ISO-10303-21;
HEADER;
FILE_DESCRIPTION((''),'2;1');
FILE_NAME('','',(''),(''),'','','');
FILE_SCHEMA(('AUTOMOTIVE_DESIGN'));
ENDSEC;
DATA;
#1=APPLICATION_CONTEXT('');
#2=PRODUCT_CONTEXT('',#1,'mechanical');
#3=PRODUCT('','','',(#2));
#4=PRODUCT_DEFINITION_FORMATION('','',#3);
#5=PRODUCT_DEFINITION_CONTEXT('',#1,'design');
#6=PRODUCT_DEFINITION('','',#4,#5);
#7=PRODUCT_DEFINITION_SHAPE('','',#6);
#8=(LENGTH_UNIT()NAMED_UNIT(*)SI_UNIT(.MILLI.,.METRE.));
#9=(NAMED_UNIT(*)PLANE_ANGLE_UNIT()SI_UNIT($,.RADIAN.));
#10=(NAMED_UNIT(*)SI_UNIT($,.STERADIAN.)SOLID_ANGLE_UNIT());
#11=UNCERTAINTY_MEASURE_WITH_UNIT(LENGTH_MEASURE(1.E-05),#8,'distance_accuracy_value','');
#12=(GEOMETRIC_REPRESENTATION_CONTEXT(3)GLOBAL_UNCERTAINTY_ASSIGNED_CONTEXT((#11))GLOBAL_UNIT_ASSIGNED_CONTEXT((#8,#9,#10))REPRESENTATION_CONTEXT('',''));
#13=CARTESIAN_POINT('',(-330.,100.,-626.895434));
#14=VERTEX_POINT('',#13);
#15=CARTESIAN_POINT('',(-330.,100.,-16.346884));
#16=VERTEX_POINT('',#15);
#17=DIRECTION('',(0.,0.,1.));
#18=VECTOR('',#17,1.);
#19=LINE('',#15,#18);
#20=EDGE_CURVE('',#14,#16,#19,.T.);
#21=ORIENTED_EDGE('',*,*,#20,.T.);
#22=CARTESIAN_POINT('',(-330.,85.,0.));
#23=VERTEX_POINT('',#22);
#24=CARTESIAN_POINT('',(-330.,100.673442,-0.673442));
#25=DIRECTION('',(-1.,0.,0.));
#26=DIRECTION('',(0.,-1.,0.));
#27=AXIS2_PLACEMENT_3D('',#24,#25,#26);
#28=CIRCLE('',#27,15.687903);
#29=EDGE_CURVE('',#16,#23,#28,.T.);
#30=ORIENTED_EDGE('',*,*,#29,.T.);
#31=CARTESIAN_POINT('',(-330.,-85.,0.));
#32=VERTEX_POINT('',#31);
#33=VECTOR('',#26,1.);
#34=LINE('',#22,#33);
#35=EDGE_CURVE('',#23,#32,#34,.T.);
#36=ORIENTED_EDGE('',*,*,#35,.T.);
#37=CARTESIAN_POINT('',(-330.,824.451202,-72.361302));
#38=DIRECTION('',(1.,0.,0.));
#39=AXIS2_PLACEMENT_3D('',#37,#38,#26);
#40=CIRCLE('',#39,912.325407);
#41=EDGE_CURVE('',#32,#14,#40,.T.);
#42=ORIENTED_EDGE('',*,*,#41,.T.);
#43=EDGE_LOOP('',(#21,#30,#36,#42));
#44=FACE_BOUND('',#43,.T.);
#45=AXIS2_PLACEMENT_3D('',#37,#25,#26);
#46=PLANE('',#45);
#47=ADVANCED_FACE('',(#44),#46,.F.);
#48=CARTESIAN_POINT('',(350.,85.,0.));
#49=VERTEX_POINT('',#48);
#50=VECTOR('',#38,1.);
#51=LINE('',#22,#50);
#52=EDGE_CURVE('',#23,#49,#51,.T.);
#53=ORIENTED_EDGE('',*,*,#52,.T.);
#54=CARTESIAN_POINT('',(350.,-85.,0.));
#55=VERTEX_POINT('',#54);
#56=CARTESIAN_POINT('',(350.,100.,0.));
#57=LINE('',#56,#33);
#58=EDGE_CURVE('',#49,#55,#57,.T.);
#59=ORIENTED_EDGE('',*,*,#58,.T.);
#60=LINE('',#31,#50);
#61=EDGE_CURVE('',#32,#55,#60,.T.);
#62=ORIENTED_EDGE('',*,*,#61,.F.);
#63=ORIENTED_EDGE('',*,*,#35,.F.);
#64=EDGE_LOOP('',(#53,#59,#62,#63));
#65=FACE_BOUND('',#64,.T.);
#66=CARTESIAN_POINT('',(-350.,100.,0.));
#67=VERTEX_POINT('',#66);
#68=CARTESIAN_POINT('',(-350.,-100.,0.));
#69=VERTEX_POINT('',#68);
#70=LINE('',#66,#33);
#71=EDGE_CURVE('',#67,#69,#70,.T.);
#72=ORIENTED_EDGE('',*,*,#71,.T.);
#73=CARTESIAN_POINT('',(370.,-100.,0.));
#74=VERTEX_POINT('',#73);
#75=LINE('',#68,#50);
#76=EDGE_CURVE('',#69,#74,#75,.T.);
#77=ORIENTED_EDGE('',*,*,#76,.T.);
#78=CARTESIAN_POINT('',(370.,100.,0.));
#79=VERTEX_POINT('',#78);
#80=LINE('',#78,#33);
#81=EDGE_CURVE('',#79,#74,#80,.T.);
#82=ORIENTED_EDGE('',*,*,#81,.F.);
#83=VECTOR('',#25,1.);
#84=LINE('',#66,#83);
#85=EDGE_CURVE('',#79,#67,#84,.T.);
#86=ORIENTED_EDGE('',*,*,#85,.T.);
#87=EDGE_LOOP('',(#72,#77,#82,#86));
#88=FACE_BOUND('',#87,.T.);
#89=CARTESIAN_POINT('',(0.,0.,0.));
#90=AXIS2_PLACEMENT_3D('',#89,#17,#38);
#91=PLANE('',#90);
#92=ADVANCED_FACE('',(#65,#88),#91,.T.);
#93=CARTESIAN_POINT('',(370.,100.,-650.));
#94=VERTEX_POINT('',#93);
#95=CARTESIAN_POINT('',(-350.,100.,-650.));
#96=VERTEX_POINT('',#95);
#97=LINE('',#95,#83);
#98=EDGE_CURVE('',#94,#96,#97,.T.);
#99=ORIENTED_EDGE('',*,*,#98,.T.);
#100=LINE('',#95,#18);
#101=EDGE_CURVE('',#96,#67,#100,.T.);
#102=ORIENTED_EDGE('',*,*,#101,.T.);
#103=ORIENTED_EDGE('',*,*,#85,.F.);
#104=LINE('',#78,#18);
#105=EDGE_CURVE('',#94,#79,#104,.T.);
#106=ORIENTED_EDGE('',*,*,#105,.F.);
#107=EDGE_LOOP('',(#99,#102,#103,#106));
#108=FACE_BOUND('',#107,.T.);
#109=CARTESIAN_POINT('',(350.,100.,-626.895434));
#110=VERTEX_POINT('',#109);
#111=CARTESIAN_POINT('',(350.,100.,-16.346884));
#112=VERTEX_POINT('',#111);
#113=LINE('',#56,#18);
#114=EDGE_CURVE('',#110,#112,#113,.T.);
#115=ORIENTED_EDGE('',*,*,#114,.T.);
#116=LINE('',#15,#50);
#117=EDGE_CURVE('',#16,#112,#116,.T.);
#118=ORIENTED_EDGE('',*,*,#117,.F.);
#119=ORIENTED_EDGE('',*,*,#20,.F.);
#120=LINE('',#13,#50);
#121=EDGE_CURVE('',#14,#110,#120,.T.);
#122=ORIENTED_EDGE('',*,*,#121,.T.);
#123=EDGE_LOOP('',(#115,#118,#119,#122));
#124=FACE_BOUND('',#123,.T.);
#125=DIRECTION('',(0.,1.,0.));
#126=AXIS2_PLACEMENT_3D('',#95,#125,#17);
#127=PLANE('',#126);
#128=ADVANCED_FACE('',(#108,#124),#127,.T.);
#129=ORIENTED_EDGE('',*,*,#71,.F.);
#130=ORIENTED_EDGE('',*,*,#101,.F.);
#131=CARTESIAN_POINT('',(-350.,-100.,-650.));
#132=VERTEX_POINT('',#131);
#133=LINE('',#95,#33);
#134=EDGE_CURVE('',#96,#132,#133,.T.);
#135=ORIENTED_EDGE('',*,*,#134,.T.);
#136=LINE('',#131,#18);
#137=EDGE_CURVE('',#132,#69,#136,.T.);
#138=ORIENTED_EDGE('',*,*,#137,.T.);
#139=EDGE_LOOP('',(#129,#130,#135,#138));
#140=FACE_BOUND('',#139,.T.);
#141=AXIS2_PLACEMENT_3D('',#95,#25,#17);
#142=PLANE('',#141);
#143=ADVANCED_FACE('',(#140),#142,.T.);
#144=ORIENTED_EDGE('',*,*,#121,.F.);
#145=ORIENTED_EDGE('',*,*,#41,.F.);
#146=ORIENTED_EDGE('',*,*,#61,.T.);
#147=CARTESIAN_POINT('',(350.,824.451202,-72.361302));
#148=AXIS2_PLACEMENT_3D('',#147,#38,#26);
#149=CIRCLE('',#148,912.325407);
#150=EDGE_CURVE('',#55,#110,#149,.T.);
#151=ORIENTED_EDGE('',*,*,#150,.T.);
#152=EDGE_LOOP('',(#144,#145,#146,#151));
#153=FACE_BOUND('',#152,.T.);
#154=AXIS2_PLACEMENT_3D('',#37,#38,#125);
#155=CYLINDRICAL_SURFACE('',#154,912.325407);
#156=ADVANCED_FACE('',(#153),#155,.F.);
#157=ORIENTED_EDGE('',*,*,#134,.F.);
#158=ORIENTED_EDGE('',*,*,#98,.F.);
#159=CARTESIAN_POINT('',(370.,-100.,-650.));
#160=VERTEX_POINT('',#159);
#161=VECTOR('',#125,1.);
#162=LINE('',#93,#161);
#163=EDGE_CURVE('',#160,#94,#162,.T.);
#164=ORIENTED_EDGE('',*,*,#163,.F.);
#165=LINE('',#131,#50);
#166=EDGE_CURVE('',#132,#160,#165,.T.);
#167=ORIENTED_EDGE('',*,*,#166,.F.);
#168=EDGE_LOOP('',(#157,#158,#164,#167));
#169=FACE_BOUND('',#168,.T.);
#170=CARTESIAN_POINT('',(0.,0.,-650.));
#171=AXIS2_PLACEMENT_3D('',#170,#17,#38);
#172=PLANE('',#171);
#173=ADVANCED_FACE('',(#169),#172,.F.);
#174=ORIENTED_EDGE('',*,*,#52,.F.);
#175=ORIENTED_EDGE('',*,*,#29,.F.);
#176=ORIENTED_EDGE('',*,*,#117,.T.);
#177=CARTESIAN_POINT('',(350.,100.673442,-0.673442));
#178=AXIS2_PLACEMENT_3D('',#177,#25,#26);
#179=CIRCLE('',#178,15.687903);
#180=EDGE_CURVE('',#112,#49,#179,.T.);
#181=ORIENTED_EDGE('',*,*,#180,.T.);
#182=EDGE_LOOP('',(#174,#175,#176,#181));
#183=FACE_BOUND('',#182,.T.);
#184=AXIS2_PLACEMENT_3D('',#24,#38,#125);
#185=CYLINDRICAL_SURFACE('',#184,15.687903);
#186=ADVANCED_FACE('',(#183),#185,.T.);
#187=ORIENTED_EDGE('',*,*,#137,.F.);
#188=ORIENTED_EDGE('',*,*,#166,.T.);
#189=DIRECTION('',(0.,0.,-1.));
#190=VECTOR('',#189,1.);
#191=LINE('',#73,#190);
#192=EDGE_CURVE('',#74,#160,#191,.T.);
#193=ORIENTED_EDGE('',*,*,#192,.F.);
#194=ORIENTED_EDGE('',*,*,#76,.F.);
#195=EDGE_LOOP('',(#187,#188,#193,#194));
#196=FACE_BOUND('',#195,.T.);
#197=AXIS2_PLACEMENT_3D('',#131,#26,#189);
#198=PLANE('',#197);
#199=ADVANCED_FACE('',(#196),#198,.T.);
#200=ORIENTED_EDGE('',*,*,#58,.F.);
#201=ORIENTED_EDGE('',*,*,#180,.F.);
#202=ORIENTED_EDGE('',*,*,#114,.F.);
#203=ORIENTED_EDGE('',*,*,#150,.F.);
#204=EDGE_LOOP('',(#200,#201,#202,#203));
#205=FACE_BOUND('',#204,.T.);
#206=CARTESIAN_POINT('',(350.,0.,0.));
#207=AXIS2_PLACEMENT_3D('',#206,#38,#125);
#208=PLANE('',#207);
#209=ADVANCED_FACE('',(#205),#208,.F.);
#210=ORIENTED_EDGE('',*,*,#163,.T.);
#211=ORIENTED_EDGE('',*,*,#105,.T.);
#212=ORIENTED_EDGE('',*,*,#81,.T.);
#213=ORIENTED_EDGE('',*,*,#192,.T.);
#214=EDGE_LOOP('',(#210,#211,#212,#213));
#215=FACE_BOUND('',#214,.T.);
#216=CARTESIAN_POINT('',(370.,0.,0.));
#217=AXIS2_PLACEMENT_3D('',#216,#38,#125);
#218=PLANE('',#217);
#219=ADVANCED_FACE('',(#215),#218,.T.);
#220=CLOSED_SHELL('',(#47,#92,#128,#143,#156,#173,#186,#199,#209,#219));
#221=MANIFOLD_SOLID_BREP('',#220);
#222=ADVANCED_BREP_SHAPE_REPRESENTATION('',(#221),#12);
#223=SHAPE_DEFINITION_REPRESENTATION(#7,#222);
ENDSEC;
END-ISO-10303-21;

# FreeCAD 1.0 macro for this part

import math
import FreeCAD as App
import Part
import Sketcher

V = App.Vector


def add_polygon(sketch, points):
    """Adds a closed chain of lines whose ends are joined by coincident constraints."""
    first, n = sketch.GeometryCount, len(points)
    for a, b in zip(points, points[1:] + points[:1]):
        sketch.addGeometry(Part.LineSegment(App.Vector(*a, 0), App.Vector(*b, 0)), False)
    for i in range(n):
        sketch.addConstraint(Sketcher.Constraint("Coincident", first + i, 2, first + (i + 1) % n, 1))

doc = App.newDocument("Part")
params = doc.addObject("Spreadsheet::Sheet", "Params")
for row, (alias, value) in enumerate([
    ("sketch1_width", "700 mm"),
    ("sketch1_height", "200 mm"),
    ("pad1_length", "650 mm"),
    ("sketch2_width", "170 mm"),
    ("pocket1_length", "680 mm"),
    ("sketch3_width", "200 mm"),
    ("sketch3_height", "650 mm"),
    ("pad2_length", "20 mm"),
], start=1):
    params.set(f"A{row}", alias)
    params.set(f"B{row}", "=" + value)
    params.setAlias(f"B{row}", alias)

body = doc.addObject("PartDesign::Body", "Body")

# Sketch on XY plane
sketch1 = body.newObject("Sketcher::SketchObject", "Sketch")
sketch1.AttachmentSupport = (doc.getObject("XY_Plane"), [""])
sketch1.MapMode = "FlatFace"
add_polygon(sketch1, [(-350, 100), (-350, -100), (350, -100), (350, 100)])  # lines 0-3
sketch1.addConstraint([
    Sketcher.Constraint("Vertical", 0),
    Sketcher.Constraint("Horizontal", 1),
    Sketcher.Constraint("Vertical", 2),
    Sketcher.Constraint("Horizontal", 3),
    Sketcher.Constraint("Symmetric", 0, 2, 2, 2, -1, 1),
    Sketcher.Constraint("DistanceX", 1, 1, 1, 2, 700.0),
    Sketcher.Constraint("DistanceY", 0, 2, 0, 1, 200.0),
])
sketch1.setExpression("Constraints[9]", "Params.sketch1_width")
sketch1.setExpression("Constraints[10]", "Params.sketch1_height")
pad1 = body.newObject("PartDesign::Pad", "Pad")
pad1.Profile = sketch1
pad1.setExpression("Length", "Params.pad1_length")
pad1.Reversed = True

# Sketch on YZ plane
sketch2 = body.newObject("Sketcher::SketchObject", "Sketch001")
sketch2.AttachmentSupport = (doc.getObject("YZ_Plane"), [""])
sketch2.MapMode = "FlatFace"
sketch2.AttachmentOffset = App.Placement(V(0, 0, 350), App.Rotation())
sketch2.addGeometry([
    Part.LineSegment(V(85, 0, 0), V(-85, 0, 0)),
    Part.ArcOfCircle(Part.Circle(V(824, -72, 0), V(0, 0, 1), 912), math.radians(175), math.radians(217)),
    Part.LineSegment(V(100, -627, 0), V(100, -16, 0)),
    Part.ArcOfCircle(Part.Circle(V(101, -1, 0), V(0, 0, 1), 16), math.radians(178), math.radians(268)),
], False)
sketch2.addConstraint([
    Sketcher.Constraint("Coincident", 0, 2, 1, 1),
    Sketcher.Constraint("Coincident", 1, 2, 2, 1),
    Sketcher.Constraint("Coincident", 2, 2, 3, 2),
    Sketcher.Constraint("Coincident", 3, 1, 0, 1),
    Sketcher.Constraint("Horizontal", 0),
    Sketcher.Constraint("Vertical", 2),
    Sketcher.Constraint("Symmetric", 0, 2, 3, 1, -1, 1),
    Sketcher.Constraint("DistanceX", 0, 2, 0, 1, 170.0),
    Sketcher.Constraint("DistanceX", -1, 1, 2, 2, 100.0),
    Sketcher.Constraint("Radius", 1, 912.325407),
    Sketcher.Constraint("Radius", 3, 15.687903),
    Sketcher.Constraint("DistanceY", 2, 1, 2, 2, 610.54855),
    Sketcher.Constraint("DistanceX", -1, 1, 3, 3, 100.673442),
])
sketch2.setExpression("Constraints[7]", "Params.sketch2_width")
pocket1 = body.newObject("PartDesign::Pocket", "Pocket")
pocket1.Profile = sketch2
pocket1.setExpression("Length", "Params.pocket1_length")

# Sketch on YZ plane
sketch3 = body.newObject("Sketcher::SketchObject", "Sketch002")
sketch3.AttachmentSupport = (doc.getObject("YZ_Plane"), [""])
sketch3.MapMode = "FlatFace"
sketch3.AttachmentOffset = App.Placement(V(0, 0, 350), App.Rotation())
add_polygon(sketch3, [(100, 0), (-100, 0), (-100, -650), (100, -650)])  # lines 0-3
sketch3.addConstraint([
    Sketcher.Constraint("Horizontal", 0),
    Sketcher.Constraint("Vertical", 1),
    Sketcher.Constraint("Horizontal", 2),
    Sketcher.Constraint("Vertical", 3),
    Sketcher.Constraint("Symmetric", 0, 2, 3, 2, -1, 1),
    Sketcher.Constraint("DistanceX", 0, 2, 0, 1, 200.0),
    Sketcher.Constraint("DistanceY", 1, 2, 1, 1, 650.0),
])
sketch3.setExpression("Constraints[9]", "Params.sketch3_width")
sketch3.setExpression("Constraints[10]", "Params.sketch3_height")
pad2 = body.newObject("PartDesign::Pad", "Pad001")
pad2.Profile = sketch3
pad2.setExpression("Length", "Params.pad2_length")

doc.recompute()
